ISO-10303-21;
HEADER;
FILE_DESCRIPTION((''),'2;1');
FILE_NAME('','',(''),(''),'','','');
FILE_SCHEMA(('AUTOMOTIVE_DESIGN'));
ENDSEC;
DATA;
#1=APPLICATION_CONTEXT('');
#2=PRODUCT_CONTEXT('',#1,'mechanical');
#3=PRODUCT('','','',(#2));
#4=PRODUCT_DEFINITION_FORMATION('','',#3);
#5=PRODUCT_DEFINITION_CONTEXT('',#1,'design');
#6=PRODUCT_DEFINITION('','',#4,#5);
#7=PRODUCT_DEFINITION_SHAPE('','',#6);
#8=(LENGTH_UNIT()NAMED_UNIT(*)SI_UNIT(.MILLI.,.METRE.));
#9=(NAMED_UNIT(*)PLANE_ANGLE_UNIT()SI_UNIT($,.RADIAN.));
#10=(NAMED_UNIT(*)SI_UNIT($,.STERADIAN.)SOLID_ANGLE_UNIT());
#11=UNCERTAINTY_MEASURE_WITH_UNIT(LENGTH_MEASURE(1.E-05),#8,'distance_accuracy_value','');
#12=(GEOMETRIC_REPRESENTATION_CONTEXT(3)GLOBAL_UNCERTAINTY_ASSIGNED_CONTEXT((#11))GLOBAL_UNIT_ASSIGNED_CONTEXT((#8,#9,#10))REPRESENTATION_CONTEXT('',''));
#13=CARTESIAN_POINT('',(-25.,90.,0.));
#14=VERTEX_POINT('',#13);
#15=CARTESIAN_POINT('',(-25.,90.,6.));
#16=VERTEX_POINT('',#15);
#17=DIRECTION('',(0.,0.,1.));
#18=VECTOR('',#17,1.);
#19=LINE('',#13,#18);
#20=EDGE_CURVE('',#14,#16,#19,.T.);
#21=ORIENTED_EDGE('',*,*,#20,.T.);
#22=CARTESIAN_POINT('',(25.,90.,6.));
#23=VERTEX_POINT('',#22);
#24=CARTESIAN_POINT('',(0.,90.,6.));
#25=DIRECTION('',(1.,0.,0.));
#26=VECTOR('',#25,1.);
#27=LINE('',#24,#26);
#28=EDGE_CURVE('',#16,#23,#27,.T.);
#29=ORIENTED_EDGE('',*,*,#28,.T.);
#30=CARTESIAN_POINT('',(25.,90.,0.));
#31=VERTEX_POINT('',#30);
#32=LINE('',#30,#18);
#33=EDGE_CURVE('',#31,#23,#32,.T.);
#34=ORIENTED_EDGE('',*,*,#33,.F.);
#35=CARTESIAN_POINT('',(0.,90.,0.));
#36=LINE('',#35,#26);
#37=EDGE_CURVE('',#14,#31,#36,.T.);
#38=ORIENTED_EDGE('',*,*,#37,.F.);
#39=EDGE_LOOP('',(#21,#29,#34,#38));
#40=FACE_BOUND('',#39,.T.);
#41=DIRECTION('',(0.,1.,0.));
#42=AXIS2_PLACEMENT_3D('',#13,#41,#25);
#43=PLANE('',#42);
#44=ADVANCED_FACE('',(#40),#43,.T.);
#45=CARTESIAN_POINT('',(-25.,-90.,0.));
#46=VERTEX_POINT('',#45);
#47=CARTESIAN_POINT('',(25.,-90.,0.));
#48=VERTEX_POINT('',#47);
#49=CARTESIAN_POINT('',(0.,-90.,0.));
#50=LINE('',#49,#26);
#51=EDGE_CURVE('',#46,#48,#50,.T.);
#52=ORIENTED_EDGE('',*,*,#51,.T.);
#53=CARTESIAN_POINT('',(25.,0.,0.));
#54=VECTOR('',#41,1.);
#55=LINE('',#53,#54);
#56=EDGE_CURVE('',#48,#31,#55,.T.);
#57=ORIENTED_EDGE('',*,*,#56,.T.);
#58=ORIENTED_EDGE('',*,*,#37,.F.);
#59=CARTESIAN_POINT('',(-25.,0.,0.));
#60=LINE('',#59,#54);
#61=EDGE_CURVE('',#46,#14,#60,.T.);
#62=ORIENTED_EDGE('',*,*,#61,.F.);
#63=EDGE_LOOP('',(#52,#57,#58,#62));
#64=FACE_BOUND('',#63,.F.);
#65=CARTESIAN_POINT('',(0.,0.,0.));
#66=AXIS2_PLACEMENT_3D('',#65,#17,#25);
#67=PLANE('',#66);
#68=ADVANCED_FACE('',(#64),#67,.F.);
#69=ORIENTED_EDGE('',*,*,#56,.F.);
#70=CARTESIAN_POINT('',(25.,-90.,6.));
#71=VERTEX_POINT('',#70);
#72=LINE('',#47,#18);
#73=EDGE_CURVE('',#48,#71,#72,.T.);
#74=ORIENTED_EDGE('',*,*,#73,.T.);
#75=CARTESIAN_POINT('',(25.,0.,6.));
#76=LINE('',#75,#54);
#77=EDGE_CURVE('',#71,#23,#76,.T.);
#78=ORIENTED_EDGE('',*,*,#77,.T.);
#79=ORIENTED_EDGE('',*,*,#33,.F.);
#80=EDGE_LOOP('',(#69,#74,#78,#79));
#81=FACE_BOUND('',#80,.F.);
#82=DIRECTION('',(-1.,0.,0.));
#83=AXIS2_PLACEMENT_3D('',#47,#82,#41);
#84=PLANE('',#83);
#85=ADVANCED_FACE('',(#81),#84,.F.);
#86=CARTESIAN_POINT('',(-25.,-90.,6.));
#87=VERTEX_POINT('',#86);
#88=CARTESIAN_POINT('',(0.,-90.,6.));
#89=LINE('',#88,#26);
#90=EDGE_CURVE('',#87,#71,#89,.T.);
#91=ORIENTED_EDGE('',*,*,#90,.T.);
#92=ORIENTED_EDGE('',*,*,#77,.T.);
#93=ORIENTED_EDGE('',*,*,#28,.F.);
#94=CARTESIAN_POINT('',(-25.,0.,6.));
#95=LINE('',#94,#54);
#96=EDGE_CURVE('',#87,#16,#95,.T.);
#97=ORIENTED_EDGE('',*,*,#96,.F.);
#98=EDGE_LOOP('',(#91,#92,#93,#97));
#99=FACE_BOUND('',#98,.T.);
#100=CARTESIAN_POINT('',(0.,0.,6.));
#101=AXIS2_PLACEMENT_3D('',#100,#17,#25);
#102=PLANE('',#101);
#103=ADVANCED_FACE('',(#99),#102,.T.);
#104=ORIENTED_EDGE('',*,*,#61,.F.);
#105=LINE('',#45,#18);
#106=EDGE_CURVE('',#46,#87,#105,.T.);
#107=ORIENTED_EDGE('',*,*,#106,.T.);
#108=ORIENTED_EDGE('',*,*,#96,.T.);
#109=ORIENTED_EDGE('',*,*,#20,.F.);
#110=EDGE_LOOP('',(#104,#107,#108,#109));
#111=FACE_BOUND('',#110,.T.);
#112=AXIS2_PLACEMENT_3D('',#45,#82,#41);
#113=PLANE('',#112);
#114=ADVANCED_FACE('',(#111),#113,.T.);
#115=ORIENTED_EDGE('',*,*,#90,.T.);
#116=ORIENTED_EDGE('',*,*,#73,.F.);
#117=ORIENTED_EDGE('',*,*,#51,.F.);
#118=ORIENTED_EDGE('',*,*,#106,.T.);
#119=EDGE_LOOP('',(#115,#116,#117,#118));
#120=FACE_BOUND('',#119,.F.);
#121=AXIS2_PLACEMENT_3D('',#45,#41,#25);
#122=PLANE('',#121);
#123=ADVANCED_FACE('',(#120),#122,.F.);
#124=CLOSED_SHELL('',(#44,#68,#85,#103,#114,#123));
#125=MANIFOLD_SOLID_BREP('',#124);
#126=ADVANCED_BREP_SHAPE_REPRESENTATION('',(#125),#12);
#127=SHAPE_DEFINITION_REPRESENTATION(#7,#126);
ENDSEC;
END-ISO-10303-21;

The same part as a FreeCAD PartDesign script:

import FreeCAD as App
import Part
import Sketcher

V = App.Vector
Q = App.Units.Quantity

doc = App.newDocument("Part")
body = doc.addObject("PartDesign::Body", "Body")

# Sketch on XY plane
sketch1 = body.newObject("Sketcher::SketchObject", "Sketch")
sketch1.AttachmentSupport = (doc.getObject("XY_Plane"), [""])
sketch1.MapMode = "FlatFace"
sketch1.addGeometry(Part.LineSegment(V(-25, 90, 0), V(-25, -90, 0)), False)
sketch1.addGeometry(Part.LineSegment(V(-25, -90, 0), V(25, -90, 0)), False)
sketch1.addGeometry(Part.LineSegment(V(25, -90, 0), V(25, 90, 0)), False)
sketch1.addGeometry(Part.LineSegment(V(25, 90, 0), V(-25, 90, 0)), False)
sketch1.addConstraint(Sketcher.Constraint("Coincident", 0, 2, 1, 1))
sketch1.addConstraint(Sketcher.Constraint("Coincident", 1, 2, 2, 1))
sketch1.addConstraint(Sketcher.Constraint("Coincident", 2, 2, 3, 1))
sketch1.addConstraint(Sketcher.Constraint("Coincident", 3, 2, 0, 1))
sketch1.addConstraint(Sketcher.Constraint("Vertical", 0))
sketch1.addConstraint(Sketcher.Constraint("Horizontal", 1))
sketch1.addConstraint(Sketcher.Constraint("Vertical", 2))
sketch1.addConstraint(Sketcher.Constraint("Horizontal", 3))
sketch1.addConstraint(Sketcher.Constraint("Symmetric", 0, 2, 2, 2, -1, 1))
sketch1.addConstraint(Sketcher.Constraint("DistanceX", 1, 1, 1, 2, Q("50 mm")))
sketch1.addConstraint(Sketcher.Constraint("DistanceY", 0, 2, 0, 1, Q("180 mm")))
pad1 = body.newObject("PartDesign::Pad", "Pad")
pad1.Profile = sketch1
pad1.Length = 6

doc.recompute()
